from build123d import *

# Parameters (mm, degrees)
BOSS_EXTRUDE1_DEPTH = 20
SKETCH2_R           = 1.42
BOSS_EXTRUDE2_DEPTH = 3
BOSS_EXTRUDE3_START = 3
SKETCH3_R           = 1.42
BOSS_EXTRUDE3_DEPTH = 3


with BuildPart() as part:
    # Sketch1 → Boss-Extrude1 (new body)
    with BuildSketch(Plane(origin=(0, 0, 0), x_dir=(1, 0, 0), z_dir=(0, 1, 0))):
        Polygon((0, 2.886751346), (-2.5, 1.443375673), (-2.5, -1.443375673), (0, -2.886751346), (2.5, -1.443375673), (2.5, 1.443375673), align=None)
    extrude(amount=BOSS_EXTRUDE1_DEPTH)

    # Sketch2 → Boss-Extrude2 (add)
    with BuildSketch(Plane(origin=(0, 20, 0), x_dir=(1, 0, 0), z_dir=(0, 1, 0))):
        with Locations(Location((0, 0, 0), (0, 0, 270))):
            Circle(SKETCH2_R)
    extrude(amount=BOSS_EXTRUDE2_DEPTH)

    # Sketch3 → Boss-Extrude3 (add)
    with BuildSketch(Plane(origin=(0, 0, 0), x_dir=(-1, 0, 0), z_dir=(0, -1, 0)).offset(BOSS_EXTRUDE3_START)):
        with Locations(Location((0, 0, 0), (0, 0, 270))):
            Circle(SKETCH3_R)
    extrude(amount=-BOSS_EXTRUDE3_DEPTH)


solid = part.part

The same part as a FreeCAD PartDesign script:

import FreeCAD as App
import Part
import Sketcher
Q = App.Units.Quantity


def add_polygon(sketch, points):
    """Adds a closed chain of lines whose ends are joined by coincident constraints."""
    first, n = sketch.GeometryCount, len(points)
    for a, b in zip(points, points[1:] + points[:1]):
        sketch.addGeometry(Part.LineSegment(App.Vector(*a, 0), App.Vector(*b, 0)), False)
    for i in range(n):
        sketch.addConstraint(Sketcher.Constraint("Coincident", first + i, 2, first + (i + 1) % n, 1))

doc = App.newDocument("Part")
params = doc.addObject("Spreadsheet::Sheet", "Params")
for row, (alias, value) in enumerate([
    ("pad1_length", "20 mm"),
    ("sketch2_diameter", "2.84 mm"),
    ("pad2_length", "3 mm"),
    ("sketch3_diameter", "2.84 mm"),
    ("pad3_length", "3 mm"),
], start=1):
    params.set(f"A{row}", alias)
    params.set(f"B{row}", "=" + value)
    params.setAlias(f"B{row}", alias)

body = doc.addObject("PartDesign::Body", "Body")

# Sketch on XZ plane
sketch1 = doc.addObject("Sketcher::SketchObject", "Sketch")
body.addObject(sketch1)
sketch1.AttachmentSupport = (doc.XZ_Plane, [""])
sketch1.MapMode = "FlatFace"
add_polygon(sketch1, [(0, -2.886751), (-2.5, -1.443376), (-2.5, 1.443376), (0, 2.886751), (2.5, 1.443376), (2.5, -1.443376)])  # lines 0-5
sketch1.addConstraint(Sketcher.Constraint("Vertical", 1))
sketch1.addConstraint(Sketcher.Constraint("Vertical", 4))
sketch1.addConstraint(Sketcher.Constraint("Symmetric", 0, 2, 3, 2, -1, 1))
sketch1.addConstraint(Sketcher.Constraint("Symmetric", 2, 2, 5, 2, -1, 1))
sketch1.addConstraint(Sketcher.Constraint("PointOnObject", 2, 2, -2))
sketch1.addConstraint(Sketcher.Constraint("Parallel", 2, 5))
sketch1.addConstraint(Sketcher.Constraint("Horizontal", 1, 2, 3, 2))
sketch1.addConstraint(Sketcher.Constraint("Angle", 0, Q("150 deg")))
sketch1.addConstraint(Sketcher.Constraint("DistanceX", 1, 2, 3, 2, 5.0))
sketch1.addConstraint(Sketcher.Constraint("DistanceY", 1, 1, 1, 2, 2.886751))
pad1 = doc.addObject("PartDesign::Pad", "Pad")
body.addObject(pad1)
pad1.Profile = sketch1
pad1.setExpression("Length", "Params.pad1_length")
pad1.Reversed = True

# Sketch on XZ plane
sketch2 = doc.addObject("Sketcher::SketchObject", "Sketch001")
body.addObject(sketch2)
sketch2.AttachmentSupport = (doc.XZ_Plane, [""])
sketch2.MapMode = "FlatFace"
sketch2.AttachmentOffset = App.Placement(App.Vector(0, 0, -20), App.Rotation())
sketch2.addGeometry(Part.Circle(App.Vector(0, 0, 0), App.Vector(0, 0, 1), 1.42), False)
sketch2.addConstraint(Sketcher.Constraint("Coincident", 0, 3, -1, 1))
sketch2.addConstraint(Sketcher.Constraint("Diameter", 0, 2.84))
sketch2.setExpression("Constraints[1]", "Params.sketch2_diameter")
pad2 = doc.addObject("PartDesign::Pad", "Pad001")
body.addObject(pad2)
pad2.Profile = sketch2
pad2.setExpression("Length", "Params.pad2_length")
pad2.Reversed = True

# Sketch on XZ plane
sketch3 = doc.addObject("Sketcher::SketchObject", "Sketch002")
body.addObject(sketch3)
sketch3.AttachmentSupport = (doc.XZ_Plane, [""])
sketch3.MapMode = "FlatFace"
sketch3.AttachmentOffset = App.Placement(App.Vector(0, 0, 3), App.Rotation())
sketch3.addGeometry(Part.Circle(App.Vector(0, 0, 0), App.Vector(0, 0, 1), 1.42), False)
sketch3.addConstraint(Sketcher.Constraint("Coincident", 0, 3, -1, 1))
sketch3.addConstraint(Sketcher.Constraint("Diameter", 0, 2.84))
sketch3.setExpression("Constraints[1]", "Params.sketch3_diameter")
pad3 = doc.addObject("PartDesign::Pad", "Pad002")
body.addObject(pad3)
pad3.Profile = sketch3
pad3.setExpression("Length", "Params.pad3_length")
pad3.Reversed = True

doc.recompute()
